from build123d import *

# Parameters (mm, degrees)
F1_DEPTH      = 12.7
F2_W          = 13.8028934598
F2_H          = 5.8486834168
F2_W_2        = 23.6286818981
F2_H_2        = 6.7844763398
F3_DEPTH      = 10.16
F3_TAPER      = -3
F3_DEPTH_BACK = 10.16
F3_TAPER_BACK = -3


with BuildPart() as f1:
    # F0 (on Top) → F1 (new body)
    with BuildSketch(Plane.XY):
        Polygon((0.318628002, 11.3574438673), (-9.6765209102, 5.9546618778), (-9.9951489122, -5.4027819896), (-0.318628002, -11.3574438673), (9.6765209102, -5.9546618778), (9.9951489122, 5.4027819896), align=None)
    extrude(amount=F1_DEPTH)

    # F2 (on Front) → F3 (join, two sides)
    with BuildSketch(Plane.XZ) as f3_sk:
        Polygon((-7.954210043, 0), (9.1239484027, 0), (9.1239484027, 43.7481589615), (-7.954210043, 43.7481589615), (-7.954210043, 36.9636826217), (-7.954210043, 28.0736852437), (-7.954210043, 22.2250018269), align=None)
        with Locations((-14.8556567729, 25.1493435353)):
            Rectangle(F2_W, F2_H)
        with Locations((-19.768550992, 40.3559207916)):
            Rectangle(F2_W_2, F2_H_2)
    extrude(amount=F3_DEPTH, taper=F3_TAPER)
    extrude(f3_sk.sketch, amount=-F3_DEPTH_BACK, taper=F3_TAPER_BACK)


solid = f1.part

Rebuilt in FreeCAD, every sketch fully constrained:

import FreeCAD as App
import Part
import Sketcher

V = App.Vector
Q = App.Units.Quantity

doc = App.newDocument("Part")
params = doc.addObject("Spreadsheet::Sheet", "Params")
for row, (alias, value) in enumerate([
    ("pad1_length", "0.5 in"),
    ("sketch2_height", "0.3499999 in"),
    ("sketch2_height2", "0.8750001 in"),
    ("pad2_length", "0.4 in"),
    ("pad2_taper", "3 deg"),
    ("pad3_length", "0.4 in"),
    ("pad3_taper", "3 deg"),
], start=1):
    params.set(f"A{row}", alias)
    params.set(f"B{row}", "=" + value)
    params.setAlias(f"B{row}", alias)

body = doc.addObject("PartDesign::Body", "Body")

# Sketch on XY plane
sketch1 = body.newObject("Sketcher::SketchObject", "Sketch")
sketch1.AttachmentSupport = (doc.getObject("XY_Plane"), [""])
sketch1.MapMode = "FlatFace"
sketch1.addGeometry([
    Part.LineSegment(V(0.318628, 11.357444, 0), V(-9.676521, 5.954662, 0)),  # 0
    Part.LineSegment(V(-9.676521, 5.954662, 0), V(-9.995149, -5.402782, 0)),  # 1
    Part.LineSegment(V(-9.995149, -5.402782, 0), V(-0.318628, -11.357444, 0)),  # 2
    Part.LineSegment(V(-0.318628, -11.357444, 0), V(9.676521, -5.954662, 0)),  # 3
    Part.LineSegment(V(9.676521, -5.954662, 0), V(9.995149, 5.402782, 0)),  # 4
    Part.LineSegment(V(9.995149, 5.402782, 0), V(0.318628, 11.357444, 0)),  # 5
], False)
sketch1.addConstraint([
    Sketcher.Constraint("Coincident", 0, 2, 1, 1),
    Sketcher.Constraint("Coincident", 1, 2, 2, 1),
    Sketcher.Constraint("Coincident", 2, 2, 3, 1),
    Sketcher.Constraint("Coincident", 3, 2, 4, 1),
    Sketcher.Constraint("Coincident", 4, 2, 5, 1),
    Sketcher.Constraint("Coincident", 5, 2, 0, 1),
    Sketcher.Constraint("Symmetric", 0, 2, 3, 2, -1, 1),
    Sketcher.Constraint("Symmetric", 1, 2, 4, 2, -1, 1),
    Sketcher.Constraint("Symmetric", 2, 2, 5, 2, -1, 1),
    Sketcher.Constraint("Equal", 0, 1),
    Sketcher.Constraint("Equal", 1, 2),
    Sketcher.Constraint("DistanceX", 0, 2, -1, 1, 9.676521),
    Sketcher.Constraint("DistanceY", -1, 1, 0, 2, 5.954662),
    Sketcher.Constraint("DistanceX", 1, 2, -1, 1, 9.995149),
    Sketcher.Constraint("DistanceY", 1, 2, -1, 1, 5.402782),
])
pad1 = body.newObject("PartDesign::Pad", "Pad")
pad1.Profile = sketch1
pad1.setExpression("Length", "Params.pad1_length")

# Sketch on XZ plane
sketch2 = body.newObject("Sketcher::SketchObject", "Sketch001")
sketch2.AttachmentSupport = (doc.getObject("XZ_Plane"), [""])
sketch2.MapMode = "FlatFace"
sketch2.addGeometry([
    Part.LineSegment(V(-7.95421, 0, 0), V(9.123948, 0, 0)),  # 0
    Part.LineSegment(V(9.123948, 0, 0), V(9.123948, 43.748159, 0)),  # 1
    Part.LineSegment(V(9.123948, 43.748159, 0), V(-31.582892, 43.748159, 0)),  # 2
    Part.LineSegment(V(-31.582892, 43.748159, 0), V(-31.582892, 36.963683, 0)),  # 3
    Part.LineSegment(V(-31.582892, 36.963683, 0), V(-7.95421, 36.963683, 0)),  # 4
    Part.LineSegment(V(-7.95421, 36.963683, 0), V(-7.95421, 28.073685, 0)),  # 5
    Part.LineSegment(V(-7.95421, 28.073685, 0), V(-21.757104, 28.073685, 0)),  # 6
    Part.LineSegment(V(-21.757104, 28.073685, 0), V(-21.757104, 22.225002, 0)),  # 7
    Part.LineSegment(V(-21.757104, 22.225002, 0), V(-7.95421, 22.225002, 0)),  # 8
    Part.LineSegment(V(-7.95421, 22.225002, 0), V(-7.95421, 0, 0)),  # 9
], False)
sketch2.addConstraint([
    Sketcher.Constraint("Coincident", 0, 2, 1, 1),
    Sketcher.Constraint("Coincident", 1, 2, 2, 1),
    Sketcher.Constraint("Coincident", 2, 2, 3, 1),
    Sketcher.Constraint("Coincident", 3, 2, 4, 1),
    Sketcher.Constraint("Coincident", 4, 2, 5, 1),
    Sketcher.Constraint("Coincident", 5, 2, 6, 1),
    Sketcher.Constraint("Coincident", 6, 2, 7, 1),
    Sketcher.Constraint("Coincident", 7, 2, 8, 1),
    Sketcher.Constraint("Coincident", 8, 2, 9, 1),
    Sketcher.Constraint("Coincident", 9, 2, 0, 1),
    Sketcher.Constraint("Horizontal", 0),
    Sketcher.Constraint("Vertical", 1),
    Sketcher.Constraint("Horizontal", 2),
    Sketcher.Constraint("Vertical", 3),
    Sketcher.Constraint("Horizontal", 4),
    Sketcher.Constraint("Vertical", 5),
    Sketcher.Constraint("Horizontal", 6),
    Sketcher.Constraint("Vertical", 7),
    Sketcher.Constraint("Horizontal", 8),
    Sketcher.Constraint("Vertical", 9),
    Sketcher.Constraint("PointOnObject", 0, 2, -1),
    Sketcher.Constraint("Vertical", 5, 2, 8, 2),
    Sketcher.Constraint("DistanceY", 5, 2, 5, 1, Q("0.3499999 in")),
    Sketcher.Constraint("DistanceY", 9, 2, 9, 1, Q("0.8750001 in")),
    Sketcher.Constraint("DistanceX", 0, 1, 0, 2, 17.078158),
    Sketcher.Constraint("DistanceX", 2, 2, 2, 1, 40.70684),
    Sketcher.Constraint("DistanceY", 1, 1, 1, 2, 43.748159),
    Sketcher.Constraint("DistanceX", 6, 2, 6, 1, 13.802893),
    Sketcher.Constraint("DistanceY", 3, 2, 3, 1, 6.784476),
    Sketcher.Constraint("DistanceX", -1, 1, 0, 2, 9.123948),
])
sketch2.setExpression("Constraints[22]", "Params.sketch2_height")
sketch2.setExpression("Constraints[23]", "Params.sketch2_height2")
pad2 = body.newObject("PartDesign::Pad", "Pad001")
pad2.Profile = sketch2
pad2.setExpression("Length", "Params.pad2_length")
pad2.setExpression("TaperAngle", "Params.pad2_taper")
pad3 = body.newObject("PartDesign::Pad", "Pad002")
pad3.Profile = sketch2
pad3.setExpression("Length", "Params.pad3_length")
pad3.Reversed = True
pad3.setExpression("TaperAngle", "Params.pad3_taper")

doc.recompute()
